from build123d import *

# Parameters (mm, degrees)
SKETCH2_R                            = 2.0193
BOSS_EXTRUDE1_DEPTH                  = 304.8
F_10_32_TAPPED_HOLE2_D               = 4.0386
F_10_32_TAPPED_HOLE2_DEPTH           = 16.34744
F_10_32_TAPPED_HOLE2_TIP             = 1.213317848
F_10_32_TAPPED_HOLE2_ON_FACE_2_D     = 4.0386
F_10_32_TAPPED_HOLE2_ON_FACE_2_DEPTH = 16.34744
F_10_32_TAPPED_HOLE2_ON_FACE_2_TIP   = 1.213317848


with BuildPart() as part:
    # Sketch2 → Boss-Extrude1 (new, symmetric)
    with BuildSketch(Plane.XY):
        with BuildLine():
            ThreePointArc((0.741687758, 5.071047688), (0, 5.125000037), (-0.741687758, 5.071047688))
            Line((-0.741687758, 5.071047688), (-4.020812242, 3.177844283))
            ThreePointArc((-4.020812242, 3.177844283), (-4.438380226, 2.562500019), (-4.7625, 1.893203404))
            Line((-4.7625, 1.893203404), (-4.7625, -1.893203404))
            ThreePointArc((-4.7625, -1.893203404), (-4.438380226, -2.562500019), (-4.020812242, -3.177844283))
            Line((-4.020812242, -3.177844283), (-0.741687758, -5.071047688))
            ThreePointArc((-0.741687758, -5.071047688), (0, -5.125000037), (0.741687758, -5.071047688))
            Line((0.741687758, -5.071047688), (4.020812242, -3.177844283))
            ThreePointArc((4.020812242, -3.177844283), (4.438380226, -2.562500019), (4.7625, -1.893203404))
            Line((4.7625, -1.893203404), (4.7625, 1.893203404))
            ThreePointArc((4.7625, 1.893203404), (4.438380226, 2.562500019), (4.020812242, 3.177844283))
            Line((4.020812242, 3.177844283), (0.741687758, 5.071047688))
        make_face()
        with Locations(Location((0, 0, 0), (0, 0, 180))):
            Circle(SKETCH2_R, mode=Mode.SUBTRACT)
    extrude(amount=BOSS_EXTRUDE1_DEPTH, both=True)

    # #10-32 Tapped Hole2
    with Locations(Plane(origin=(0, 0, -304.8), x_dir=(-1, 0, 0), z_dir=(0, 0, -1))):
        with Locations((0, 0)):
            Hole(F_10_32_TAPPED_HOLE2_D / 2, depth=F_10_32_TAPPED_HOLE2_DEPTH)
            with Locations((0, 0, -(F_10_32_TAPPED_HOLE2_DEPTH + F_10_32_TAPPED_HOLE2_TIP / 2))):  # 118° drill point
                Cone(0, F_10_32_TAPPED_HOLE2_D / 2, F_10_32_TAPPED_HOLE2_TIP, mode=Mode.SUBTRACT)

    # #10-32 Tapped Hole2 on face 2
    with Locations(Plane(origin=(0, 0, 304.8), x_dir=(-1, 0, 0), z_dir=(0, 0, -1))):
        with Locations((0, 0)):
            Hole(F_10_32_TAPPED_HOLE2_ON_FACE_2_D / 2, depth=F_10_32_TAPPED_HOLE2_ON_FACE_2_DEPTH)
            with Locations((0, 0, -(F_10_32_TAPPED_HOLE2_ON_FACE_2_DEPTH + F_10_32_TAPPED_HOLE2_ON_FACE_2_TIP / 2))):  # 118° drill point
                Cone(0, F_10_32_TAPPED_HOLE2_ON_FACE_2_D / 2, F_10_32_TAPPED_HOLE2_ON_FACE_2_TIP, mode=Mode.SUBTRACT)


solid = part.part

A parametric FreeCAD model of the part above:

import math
import FreeCAD as App
import Part
import Sketcher
Q = App.Units.Quantity

doc = App.newDocument("Part")
body = doc.addObject("PartDesign::Body", "Body")

sketch1 = doc.addObject("Sketcher::SketchObject", "Sketch")
body.addObject(sketch1)
sketch1.AttachmentSupport = (doc.XY_Plane, [""])
sketch1.MapMode = "FlatFace"
sketch1.addGeometry(Part.ArcOfCircle(Part.Circle(App.Vector(0, 0, 0), App.Vector(0, 0, 1), 5.1), math.radians(81.68), math.radians(98.32)), False)
sketch1.addGeometry(Part.LineSegment(App.Vector(-0.7, 5.1, 0), App.Vector(-4, 3.2, 0)), False)
sketch1.addGeometry(Part.ArcOfCircle(Part.Circle(App.Vector(0, 0, 0), App.Vector(0, 0, 1), 5.1), math.radians(141.68), math.radians(158.32)), False)
sketch1.addGeometry(Part.LineSegment(App.Vector(-4.8, 1.9, 0), App.Vector(-4.8, -1.9, 0)), False)
sketch1.addGeometry(Part.ArcOfCircle(Part.Circle(App.Vector(0, 0, 0), App.Vector(0, 0, 1), 5.1), math.radians(-158.32), math.radians(-141.68)), False)
sketch1.addGeometry(Part.LineSegment(App.Vector(-4, -3.2, 0), App.Vector(-0.7, -5.1, 0)), False)
sketch1.addGeometry(Part.ArcOfCircle(Part.Circle(App.Vector(0, 0, 0), App.Vector(0, 0, 1), 5.1), math.radians(-98.32), math.radians(-81.68)), False)
sketch1.addGeometry(Part.LineSegment(App.Vector(0.7, -5.1, 0), App.Vector(4, -3.2, 0)), False)
sketch1.addGeometry(Part.ArcOfCircle(Part.Circle(App.Vector(0, 0, 0), App.Vector(0, 0, 1), 5.1), math.radians(-38.32), math.radians(-21.68)), False)
sketch1.addGeometry(Part.LineSegment(App.Vector(4.8, -1.9, 0), App.Vector(4.8, 1.9, 0)), False)
sketch1.addGeometry(Part.ArcOfCircle(Part.Circle(App.Vector(0, 0, 0), App.Vector(0, 0, 1), 5.1), math.radians(21.68), math.radians(38.32)), False)
sketch1.addGeometry(Part.LineSegment(App.Vector(4, 3.2, 0), App.Vector(0.7, 5.1, 0)), False)
sketch1.addGeometry(Part.Circle(App.Vector(0, 0, 0), App.Vector(0, 0, 1), 2), False)
sketch1.addConstraint(Sketcher.Constraint("Coincident", 0, 2, 1, 1))
sketch1.addConstraint(Sketcher.Constraint("Coincident", 1, 2, 2, 1))
sketch1.addConstraint(Sketcher.Constraint("Coincident", 2, 2, 3, 1))
sketch1.addConstraint(Sketcher.Constraint("Coincident", 3, 2, 4, 1))
sketch1.addConstraint(Sketcher.Constraint("Coincident", 4, 2, 5, 1))
sketch1.addConstraint(Sketcher.Constraint("Coincident", 5, 2, 6, 1))
sketch1.addConstraint(Sketcher.Constraint("Coincident", 6, 2, 7, 1))
sketch1.addConstraint(Sketcher.Constraint("Coincident", 7, 2, 8, 1))
sketch1.addConstraint(Sketcher.Constraint("Coincident", 8, 2, 9, 1))
sketch1.addConstraint(Sketcher.Constraint("Coincident", 9, 2, 10, 1))
sketch1.addConstraint(Sketcher.Constraint("Coincident", 10, 2, 11, 1))
sketch1.addConstraint(Sketcher.Constraint("Coincident", 11, 2, 0, 1))
sketch1.addConstraint(Sketcher.Constraint("Vertical", 3))
sketch1.addConstraint(Sketcher.Constraint("Vertical", 9))
sketch1.addConstraint(Sketcher.Constraint("Coincident", 0, 3, -1, 1))
sketch1.addConstraint(Sketcher.Constraint("Coincident", 2, 3, -1, 1))
sketch1.addConstraint(Sketcher.Constraint("Coincident", 4, 3, -1, 1))
sketch1.addConstraint(Sketcher.Constraint("Coincident", 6, 3, -1, 1))
sketch1.addConstraint(Sketcher.Constraint("Coincident", 8, 3, -1, 1))
sketch1.addConstraint(Sketcher.Constraint("Coincident", 10, 3, -1, 1))
sketch1.addConstraint(Sketcher.Constraint("Coincident", 12, 3, -1, 1))
sketch1.addConstraint(Sketcher.Constraint("Equal", 0, 2))
sketch1.addConstraint(Sketcher.Constraint("Equal", 2, 4))
sketch1.addConstraint(Sketcher.Constraint("Equal", 4, 6))
sketch1.addConstraint(Sketcher.Constraint("Equal", 6, 8))
sketch1.addConstraint(Sketcher.Constraint("Equal", 8, 10))
sketch1.addConstraint(Sketcher.Constraint("Parallel", 1, 7))
sketch1.addConstraint(Sketcher.Constraint("Parallel", 5, 11))
sketch1.addConstraint(Sketcher.Constraint("Horizontal", 5, 2, 6, 2))
sketch1.addConstraint(Sketcher.Constraint("Horizontal", 4, 2, 7, 2))
sketch1.addConstraint(Sketcher.Constraint("Horizontal", 3, 2, 8, 2))
sketch1.addConstraint(Sketcher.Constraint("Horizontal", 1, 2, 10, 2))
sketch1.addConstraint(Sketcher.Constraint("Vertical", 1, 2, 4, 2))
sketch1.addConstraint(Sketcher.Constraint("Diameter", 12, Q("0.159 in")))
sketch1.addConstraint(Sketcher.Constraint("Angle", 1, Q("-150 deg")))
sketch1.addConstraint(Sketcher.Constraint("Radius", 0, 5.125))
sketch1.addConstraint(Sketcher.Constraint("DistanceX", 2, 2, -1, 1, Q("0.1875 in")))
sketch1.addConstraint(Sketcher.Constraint("DistanceX", 4, 2, 6, 2, Q("0.1875 in")))
pad1 = doc.addObject("PartDesign::Pad", "Pad")
body.addObject(pad1)
pad1.Profile = sketch1
pad1.Length = Q("24 in")
pad1.Midplane = True

sketch2 = doc.addObject("Sketcher::SketchObject", "Sketch001")
body.addObject(sketch2)
sketch2.AttachmentSupport = (doc.XY_Plane, [""])
sketch2.MapMode = "FlatFace"
sketch2.AttachmentOffset = App.Placement(App.Vector(0, 0, -12 * 25.4), App.Rotation())
sketch2.addGeometry(Part.Circle(App.Vector(0, 0, 0), App.Vector(0, 0, 1), 2), False)
sketch2.addConstraint(Sketcher.Constraint("Coincident", 0, 3, -1, 1))
sketch2.addConstraint(Sketcher.Constraint("Diameter", 0, Q("0.159 in")))
doc.recompute()
hole = doc.addObject("PartDesign::Hole", "Hole")
body.addObject(hole)
hole.Profile = sketch2
hole.ThreadType = "None"
hole.Diameter = Q("0.159 in")
hole.DepthType = "Dimension"
hole.Depth = Q("0.6436 in")
hole.DrillPoint = "Angled"
hole.DrillPointAngle = 118
hole.Reversed = True

sketch3 = doc.addObject("Sketcher::SketchObject", "Sketch002")
body.addObject(sketch3)
sketch3.AttachmentSupport = (doc.XY_Plane, [""])
sketch3.MapMode = "FlatFace"
sketch3.AttachmentOffset = App.Placement(App.Vector(0, 0, 12 * 25.4), App.Rotation())
sketch3.addGeometry(Part.Circle(App.Vector(0, 0, 0), App.Vector(0, 0, 1), 2), False)
sketch3.addConstraint(Sketcher.Constraint("Coincident", 0, 3, -1, 1))
sketch3.addConstraint(Sketcher.Constraint("Diameter", 0, Q("0.159 in")))
doc.recompute()
hole2 = doc.addObject("PartDesign::Hole", "Hole001")
body.addObject(hole2)
hole2.Profile = sketch3
hole2.ThreadType = "None"
hole2.Diameter = Q("0.159 in")
hole2.DepthType = "Dimension"
hole2.Depth = Q("0.6436 in")
hole2.DrillPoint = "Angled"
hole2.DrillPointAngle = 118
hole2.Reversed = True

doc.recompute()
